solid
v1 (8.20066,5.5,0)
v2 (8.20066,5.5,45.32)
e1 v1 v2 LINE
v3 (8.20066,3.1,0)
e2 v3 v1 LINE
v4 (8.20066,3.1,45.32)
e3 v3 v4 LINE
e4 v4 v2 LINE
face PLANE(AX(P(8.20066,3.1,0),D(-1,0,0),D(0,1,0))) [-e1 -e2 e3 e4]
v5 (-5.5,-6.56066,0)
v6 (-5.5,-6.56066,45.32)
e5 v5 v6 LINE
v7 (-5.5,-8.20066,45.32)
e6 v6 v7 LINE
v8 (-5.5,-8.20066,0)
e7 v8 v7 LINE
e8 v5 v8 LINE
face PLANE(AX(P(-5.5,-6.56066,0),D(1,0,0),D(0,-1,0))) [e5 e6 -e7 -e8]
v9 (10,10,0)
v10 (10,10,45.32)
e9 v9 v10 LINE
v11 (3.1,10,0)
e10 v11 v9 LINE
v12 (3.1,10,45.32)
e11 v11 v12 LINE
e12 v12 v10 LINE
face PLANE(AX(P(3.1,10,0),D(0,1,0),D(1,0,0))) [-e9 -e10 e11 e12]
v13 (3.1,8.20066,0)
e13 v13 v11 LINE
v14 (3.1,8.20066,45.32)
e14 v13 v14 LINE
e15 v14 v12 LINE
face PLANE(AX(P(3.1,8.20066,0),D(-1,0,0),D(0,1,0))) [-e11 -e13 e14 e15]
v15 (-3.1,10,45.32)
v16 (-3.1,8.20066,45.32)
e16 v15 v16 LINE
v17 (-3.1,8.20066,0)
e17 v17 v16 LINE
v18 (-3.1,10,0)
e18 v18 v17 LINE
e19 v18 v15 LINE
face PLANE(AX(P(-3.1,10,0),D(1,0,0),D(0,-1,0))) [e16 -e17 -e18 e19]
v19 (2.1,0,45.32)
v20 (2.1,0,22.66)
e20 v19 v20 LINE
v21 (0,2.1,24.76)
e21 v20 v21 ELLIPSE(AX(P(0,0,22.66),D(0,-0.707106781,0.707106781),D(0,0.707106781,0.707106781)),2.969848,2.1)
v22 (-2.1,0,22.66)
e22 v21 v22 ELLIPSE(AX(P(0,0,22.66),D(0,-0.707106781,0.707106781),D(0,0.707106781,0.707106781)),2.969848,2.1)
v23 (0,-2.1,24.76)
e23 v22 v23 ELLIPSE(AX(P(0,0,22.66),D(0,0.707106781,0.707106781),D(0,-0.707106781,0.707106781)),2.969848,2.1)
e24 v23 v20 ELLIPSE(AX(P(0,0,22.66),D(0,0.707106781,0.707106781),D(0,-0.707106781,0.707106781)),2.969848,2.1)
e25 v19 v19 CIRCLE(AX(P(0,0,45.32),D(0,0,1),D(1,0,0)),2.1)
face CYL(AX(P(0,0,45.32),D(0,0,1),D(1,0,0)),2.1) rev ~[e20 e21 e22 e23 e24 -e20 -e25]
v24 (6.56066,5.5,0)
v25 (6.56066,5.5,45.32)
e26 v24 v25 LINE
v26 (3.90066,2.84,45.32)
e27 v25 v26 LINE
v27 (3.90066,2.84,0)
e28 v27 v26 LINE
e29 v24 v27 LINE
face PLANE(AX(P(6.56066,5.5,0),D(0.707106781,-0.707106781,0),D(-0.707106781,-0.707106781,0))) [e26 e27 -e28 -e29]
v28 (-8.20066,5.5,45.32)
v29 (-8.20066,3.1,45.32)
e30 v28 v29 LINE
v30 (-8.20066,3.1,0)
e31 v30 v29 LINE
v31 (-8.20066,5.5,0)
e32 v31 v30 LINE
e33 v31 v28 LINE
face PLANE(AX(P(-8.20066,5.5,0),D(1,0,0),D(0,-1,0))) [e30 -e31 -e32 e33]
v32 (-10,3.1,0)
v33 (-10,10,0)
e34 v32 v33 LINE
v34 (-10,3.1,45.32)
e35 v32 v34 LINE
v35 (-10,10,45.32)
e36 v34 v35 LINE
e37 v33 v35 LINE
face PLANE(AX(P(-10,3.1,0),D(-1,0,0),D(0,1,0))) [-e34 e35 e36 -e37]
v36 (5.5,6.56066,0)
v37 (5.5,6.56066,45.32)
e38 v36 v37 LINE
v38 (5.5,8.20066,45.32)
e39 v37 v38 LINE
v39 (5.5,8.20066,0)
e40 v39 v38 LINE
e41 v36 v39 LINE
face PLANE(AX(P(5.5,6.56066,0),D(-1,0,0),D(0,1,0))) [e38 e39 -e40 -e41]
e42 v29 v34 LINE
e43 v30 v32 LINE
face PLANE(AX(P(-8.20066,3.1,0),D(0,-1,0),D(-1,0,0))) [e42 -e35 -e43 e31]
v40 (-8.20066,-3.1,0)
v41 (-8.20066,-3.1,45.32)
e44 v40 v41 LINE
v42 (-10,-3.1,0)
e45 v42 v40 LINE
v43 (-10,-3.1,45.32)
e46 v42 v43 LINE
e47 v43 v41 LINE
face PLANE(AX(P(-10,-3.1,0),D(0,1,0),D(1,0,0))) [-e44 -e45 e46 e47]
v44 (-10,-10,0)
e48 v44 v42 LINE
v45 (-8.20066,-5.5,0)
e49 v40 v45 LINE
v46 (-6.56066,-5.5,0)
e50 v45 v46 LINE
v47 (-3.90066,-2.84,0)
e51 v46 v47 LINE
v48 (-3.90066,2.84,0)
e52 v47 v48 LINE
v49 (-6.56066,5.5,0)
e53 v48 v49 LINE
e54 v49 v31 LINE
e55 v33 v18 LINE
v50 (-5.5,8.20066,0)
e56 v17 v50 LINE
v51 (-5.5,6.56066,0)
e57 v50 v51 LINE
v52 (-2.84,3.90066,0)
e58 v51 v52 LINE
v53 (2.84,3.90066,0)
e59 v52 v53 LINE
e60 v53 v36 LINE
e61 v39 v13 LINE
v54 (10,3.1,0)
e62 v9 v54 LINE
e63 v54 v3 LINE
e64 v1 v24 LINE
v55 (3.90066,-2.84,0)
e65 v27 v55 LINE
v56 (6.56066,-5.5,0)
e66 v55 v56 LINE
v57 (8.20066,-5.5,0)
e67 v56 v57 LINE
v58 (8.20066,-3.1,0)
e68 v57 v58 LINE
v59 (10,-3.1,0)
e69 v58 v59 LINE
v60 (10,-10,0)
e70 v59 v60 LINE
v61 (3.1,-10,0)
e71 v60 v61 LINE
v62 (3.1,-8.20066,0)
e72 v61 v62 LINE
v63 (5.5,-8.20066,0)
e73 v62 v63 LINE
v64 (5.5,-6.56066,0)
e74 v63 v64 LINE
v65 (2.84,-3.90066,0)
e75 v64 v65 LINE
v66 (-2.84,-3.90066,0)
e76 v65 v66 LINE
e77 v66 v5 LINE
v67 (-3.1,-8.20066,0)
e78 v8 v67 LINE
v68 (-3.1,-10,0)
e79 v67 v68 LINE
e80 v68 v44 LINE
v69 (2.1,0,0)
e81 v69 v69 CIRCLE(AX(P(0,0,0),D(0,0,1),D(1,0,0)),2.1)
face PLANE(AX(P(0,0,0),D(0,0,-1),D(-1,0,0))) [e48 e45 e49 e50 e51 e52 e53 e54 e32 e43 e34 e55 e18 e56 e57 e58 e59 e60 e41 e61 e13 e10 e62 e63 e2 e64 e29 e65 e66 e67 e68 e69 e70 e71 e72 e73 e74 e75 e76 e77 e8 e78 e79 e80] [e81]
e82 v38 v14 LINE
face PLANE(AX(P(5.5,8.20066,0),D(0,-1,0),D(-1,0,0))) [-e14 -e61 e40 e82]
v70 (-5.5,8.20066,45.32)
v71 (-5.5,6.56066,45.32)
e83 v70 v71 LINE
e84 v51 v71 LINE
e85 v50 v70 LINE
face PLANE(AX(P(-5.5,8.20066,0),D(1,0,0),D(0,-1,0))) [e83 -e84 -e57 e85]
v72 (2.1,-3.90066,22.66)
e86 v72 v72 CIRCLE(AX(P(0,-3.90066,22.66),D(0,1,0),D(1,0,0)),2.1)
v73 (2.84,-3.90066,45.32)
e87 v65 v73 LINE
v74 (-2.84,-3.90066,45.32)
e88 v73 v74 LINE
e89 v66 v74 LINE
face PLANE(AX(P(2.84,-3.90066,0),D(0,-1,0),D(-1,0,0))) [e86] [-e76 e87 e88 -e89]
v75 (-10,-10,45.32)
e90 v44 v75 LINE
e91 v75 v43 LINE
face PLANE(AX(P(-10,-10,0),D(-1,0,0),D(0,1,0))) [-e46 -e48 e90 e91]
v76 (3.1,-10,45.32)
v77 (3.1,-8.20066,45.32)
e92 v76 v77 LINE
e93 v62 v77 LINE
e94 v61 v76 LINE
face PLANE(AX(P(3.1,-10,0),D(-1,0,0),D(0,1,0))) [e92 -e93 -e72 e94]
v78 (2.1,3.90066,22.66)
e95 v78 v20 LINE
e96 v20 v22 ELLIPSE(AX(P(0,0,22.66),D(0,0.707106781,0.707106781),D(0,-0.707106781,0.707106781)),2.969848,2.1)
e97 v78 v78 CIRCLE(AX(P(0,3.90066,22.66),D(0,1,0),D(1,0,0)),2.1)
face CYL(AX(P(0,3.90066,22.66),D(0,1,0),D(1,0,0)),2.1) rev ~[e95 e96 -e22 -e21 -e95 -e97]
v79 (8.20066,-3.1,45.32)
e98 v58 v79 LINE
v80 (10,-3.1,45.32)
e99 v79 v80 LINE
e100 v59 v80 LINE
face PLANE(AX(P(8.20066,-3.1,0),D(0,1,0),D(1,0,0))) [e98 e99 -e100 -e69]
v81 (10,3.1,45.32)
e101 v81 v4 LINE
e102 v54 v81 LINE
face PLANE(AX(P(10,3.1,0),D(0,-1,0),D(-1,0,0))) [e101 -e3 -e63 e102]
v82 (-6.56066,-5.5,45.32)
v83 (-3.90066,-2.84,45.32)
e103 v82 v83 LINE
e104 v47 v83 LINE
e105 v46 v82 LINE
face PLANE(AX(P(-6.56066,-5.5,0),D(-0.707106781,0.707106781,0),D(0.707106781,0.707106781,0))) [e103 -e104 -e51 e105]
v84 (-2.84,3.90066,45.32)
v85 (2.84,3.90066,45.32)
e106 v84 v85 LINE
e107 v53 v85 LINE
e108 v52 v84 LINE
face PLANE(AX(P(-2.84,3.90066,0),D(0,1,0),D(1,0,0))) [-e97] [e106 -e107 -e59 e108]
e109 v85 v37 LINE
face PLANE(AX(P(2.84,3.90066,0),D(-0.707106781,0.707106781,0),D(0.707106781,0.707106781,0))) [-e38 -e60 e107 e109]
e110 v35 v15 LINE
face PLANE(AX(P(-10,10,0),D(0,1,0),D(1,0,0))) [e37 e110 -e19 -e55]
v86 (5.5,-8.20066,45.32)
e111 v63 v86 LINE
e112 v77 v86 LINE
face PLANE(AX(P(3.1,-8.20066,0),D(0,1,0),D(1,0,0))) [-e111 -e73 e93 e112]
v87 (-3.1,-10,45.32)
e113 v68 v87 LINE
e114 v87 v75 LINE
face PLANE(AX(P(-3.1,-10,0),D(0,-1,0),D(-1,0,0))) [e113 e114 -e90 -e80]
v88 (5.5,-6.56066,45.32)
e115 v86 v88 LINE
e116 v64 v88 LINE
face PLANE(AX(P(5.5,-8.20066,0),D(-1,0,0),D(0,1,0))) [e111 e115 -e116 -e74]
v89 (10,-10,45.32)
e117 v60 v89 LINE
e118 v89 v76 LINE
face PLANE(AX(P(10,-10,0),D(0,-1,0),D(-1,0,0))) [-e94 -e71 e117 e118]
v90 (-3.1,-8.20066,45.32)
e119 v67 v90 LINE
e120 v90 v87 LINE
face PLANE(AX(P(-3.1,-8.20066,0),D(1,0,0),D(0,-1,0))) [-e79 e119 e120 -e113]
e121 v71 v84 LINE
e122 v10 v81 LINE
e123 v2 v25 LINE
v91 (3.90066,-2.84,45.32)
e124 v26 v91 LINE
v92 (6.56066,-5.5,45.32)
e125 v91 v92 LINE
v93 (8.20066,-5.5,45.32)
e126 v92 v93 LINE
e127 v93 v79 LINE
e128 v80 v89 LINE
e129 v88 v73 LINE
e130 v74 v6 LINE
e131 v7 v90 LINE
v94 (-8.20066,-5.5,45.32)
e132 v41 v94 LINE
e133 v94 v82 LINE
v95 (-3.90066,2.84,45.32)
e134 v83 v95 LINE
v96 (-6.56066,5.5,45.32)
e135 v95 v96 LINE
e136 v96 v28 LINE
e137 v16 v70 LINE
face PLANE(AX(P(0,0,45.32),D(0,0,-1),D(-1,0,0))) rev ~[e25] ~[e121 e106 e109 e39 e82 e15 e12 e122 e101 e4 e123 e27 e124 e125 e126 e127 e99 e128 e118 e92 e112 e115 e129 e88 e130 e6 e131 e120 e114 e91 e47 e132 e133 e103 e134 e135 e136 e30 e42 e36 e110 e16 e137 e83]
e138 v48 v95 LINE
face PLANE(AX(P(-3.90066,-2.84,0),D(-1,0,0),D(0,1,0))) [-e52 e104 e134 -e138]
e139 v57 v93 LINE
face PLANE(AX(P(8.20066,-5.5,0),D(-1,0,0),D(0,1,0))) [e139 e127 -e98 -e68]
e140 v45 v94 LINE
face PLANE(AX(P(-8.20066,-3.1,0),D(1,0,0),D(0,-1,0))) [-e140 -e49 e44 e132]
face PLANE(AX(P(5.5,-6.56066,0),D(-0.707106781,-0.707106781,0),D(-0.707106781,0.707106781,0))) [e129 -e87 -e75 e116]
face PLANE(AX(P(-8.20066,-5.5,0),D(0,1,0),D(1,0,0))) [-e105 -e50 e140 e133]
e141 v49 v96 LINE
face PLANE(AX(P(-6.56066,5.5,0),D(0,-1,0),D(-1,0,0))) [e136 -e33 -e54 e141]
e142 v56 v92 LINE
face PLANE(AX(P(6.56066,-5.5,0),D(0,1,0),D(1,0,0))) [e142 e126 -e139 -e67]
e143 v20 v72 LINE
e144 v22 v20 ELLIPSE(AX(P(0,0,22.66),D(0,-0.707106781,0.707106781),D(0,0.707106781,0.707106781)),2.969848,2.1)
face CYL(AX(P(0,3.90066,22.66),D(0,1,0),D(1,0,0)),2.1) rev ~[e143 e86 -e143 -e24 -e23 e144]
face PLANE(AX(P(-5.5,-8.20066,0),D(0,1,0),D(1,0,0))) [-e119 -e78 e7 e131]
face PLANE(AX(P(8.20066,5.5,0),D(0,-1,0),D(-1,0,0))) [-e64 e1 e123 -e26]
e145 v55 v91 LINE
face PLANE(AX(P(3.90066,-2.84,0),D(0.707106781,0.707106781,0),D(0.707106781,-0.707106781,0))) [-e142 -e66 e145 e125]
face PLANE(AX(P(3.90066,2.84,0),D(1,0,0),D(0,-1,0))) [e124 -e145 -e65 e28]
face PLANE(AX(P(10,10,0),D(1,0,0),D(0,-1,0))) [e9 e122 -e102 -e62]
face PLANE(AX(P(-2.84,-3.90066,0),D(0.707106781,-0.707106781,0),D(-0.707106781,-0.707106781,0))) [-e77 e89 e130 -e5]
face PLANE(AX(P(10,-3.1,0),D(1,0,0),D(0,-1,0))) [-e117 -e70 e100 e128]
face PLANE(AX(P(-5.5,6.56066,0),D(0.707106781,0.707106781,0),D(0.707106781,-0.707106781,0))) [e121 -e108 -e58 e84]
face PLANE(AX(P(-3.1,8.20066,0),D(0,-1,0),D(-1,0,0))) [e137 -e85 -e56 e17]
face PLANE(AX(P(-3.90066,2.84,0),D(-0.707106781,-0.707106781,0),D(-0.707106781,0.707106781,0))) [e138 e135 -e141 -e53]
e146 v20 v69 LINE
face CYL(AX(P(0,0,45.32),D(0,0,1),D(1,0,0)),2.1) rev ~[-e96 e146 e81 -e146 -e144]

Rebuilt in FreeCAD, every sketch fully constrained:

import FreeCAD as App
import Part
import Sketcher


def add_polygon(sketch, points):
    """Adds a closed chain of lines whose ends are joined by coincident constraints."""
    first, n = sketch.GeometryCount, len(points)
    for a, b in zip(points, points[1:] + points[:1]):
        sketch.addGeometry(Part.LineSegment(App.Vector(*a, 0), App.Vector(*b, 0)), False)
    for i in range(n):
        sketch.addConstraint(Sketcher.Constraint("Coincident", first + i, 2, first + (i + 1) % n, 1))

doc = App.newDocument("Part")
body = doc.addObject("PartDesign::Body", "Body")

# Sketch on XY plane
sketch1 = body.newObject("Sketcher::SketchObject", "Sketch")
sketch1.AttachmentSupport = (doc.getObject("XY_Plane"), [""])
sketch1.MapMode = "FlatFace"
add_polygon(sketch1, [(-3.1, 8.2), (-3.1, 10), (-10, 10), (-10, 3.1), (-8.2, 3.1), (-8.2, 5.5), (-6.6, 5.5), (-3.9, 2.8), (-3.9, -2.8), (-6.6, -5.5), (-8.2, -5.5), (-8.2, -3.1), (-10, -3.1), (-10, -10), (-3.1, -10), (-3.1, -8.2), (-5.5, -8.2), (-5.5, -6.6), (-2.8, -3.9), (2.8, -3.9), (5.5, -6.6), (5.5, -8.2), (3.1, -8.2), (3.1, -10), (10, -10), (10, -3.1), (8.2, -3.1), (8.2, -5.5), (6.6, -5.5), (3.9, -2.8), (3.9, 2.8), (6.6, 5.5), (8.2, 5.5), (8.2, 3.1), (10, 3.1), (10, 10), (3.1, 10), (3.1, 8.2), (5.5, 8.2), (5.5, 6.6), (2.8, 3.9), (-2.8, 3.9), (-5.5, 6.6), (-5.5, 8.2)])  # lines 0-43
sketch1.addConstraint([
    Sketcher.Constraint("Vertical", 0),
    Sketcher.Constraint("Horizontal", 1),
    Sketcher.Constraint("Vertical", 2),
    Sketcher.Constraint("Horizontal", 3),
    Sketcher.Constraint("Vertical", 4),
    Sketcher.Constraint("Horizontal", 5),
    Sketcher.Constraint("Vertical", 7),
    Sketcher.Constraint("Horizontal", 9),
    Sketcher.Constraint("Vertical", 10),
    Sketcher.Constraint("Horizontal", 11),
    Sketcher.Constraint("Vertical", 12),
    Sketcher.Constraint("Horizontal", 13),
    Sketcher.Constraint("Vertical", 14),
    Sketcher.Constraint("Horizontal", 15),
    Sketcher.Constraint("Vertical", 16),
    Sketcher.Constraint("Horizontal", 18),
    Sketcher.Constraint("Vertical", 20),
    Sketcher.Constraint("Horizontal", 21),
    Sketcher.Constraint("Vertical", 22),
    Sketcher.Constraint("Horizontal", 23),
    Sketcher.Constraint("Vertical", 24),
    Sketcher.Constraint("Horizontal", 25),
    Sketcher.Constraint("Vertical", 26),
    Sketcher.Constraint("Horizontal", 27),
    Sketcher.Constraint("Vertical", 29),
    Sketcher.Constraint("Horizontal", 31),
    Sketcher.Constraint("Vertical", 32),
    Sketcher.Constraint("Horizontal", 33),
    Sketcher.Constraint("Vertical", 34),
    Sketcher.Constraint("Horizontal", 35),
    Sketcher.Constraint("Vertical", 36),
    Sketcher.Constraint("Horizontal", 37),
    Sketcher.Constraint("Vertical", 38),
    Sketcher.Constraint("Horizontal", 40),
    Sketcher.Constraint("Vertical", 42),
    Sketcher.Constraint("Horizontal", 43),
    Sketcher.Constraint("Symmetric", 0, 2, 22, 2, -1, 1),
    Sketcher.Constraint("Symmetric", 2, 2, 24, 2, -1, 1),
    Sketcher.Constraint("Symmetric", 4, 2, 26, 2, -1, 1),
    Sketcher.Constraint("Symmetric", 6, 2, 28, 2, -1, 1),
    Sketcher.Constraint("Symmetric", 8, 2, 30, 2, -1, 1),
    Sketcher.Constraint("Symmetric", 10, 2, 32, 2, -1, 1),
    Sketcher.Constraint("Symmetric", 12, 2, 34, 2, -1, 1),
    Sketcher.Constraint("Symmetric", 14, 2, 36, 2, -1, 1),
    Sketcher.Constraint("Symmetric", 16, 2, 38, 2, -1, 1),
    Sketcher.Constraint("Symmetric", 17, 2, 39, 2, -1, 1),
    Sketcher.Constraint("Symmetric", 19, 2, 41, 2, -1, 1),
    Sketcher.Constraint("Symmetric", 16, 2, 19, 2, -2),
    Sketcher.Constraint("Symmetric", 14, 2, 21, 2, -2),
    Sketcher.Constraint("Symmetric", 12, 2, 23, 2, -2),
    Sketcher.Constraint("Symmetric", 10, 2, 25, 2, -2),
    Sketcher.Constraint("Symmetric", 8, 2, 27, 2, -2),
    Sketcher.Constraint("Perpendicular", 6, 8),
    Sketcher.Constraint("Parallel", 8, 17),
    Sketcher.Constraint("Perpendicular", 17, 19),
    Sketcher.Constraint("Parallel", 19, 28),
    Sketcher.Constraint("Perpendicular", 28, 30),
    Sketcher.Constraint("Perpendicular", 39, 41),
    Sketcher.Constraint("Horizontal", 7, 2, 28, 2),
    Sketcher.Constraint("Horizontal", 37, 2, 42, 2),
    Sketcher.Constraint("Equal", 33, 0),
    Sketcher.Constraint("Equal", 35, 2),
    Sketcher.Constraint("Equal", 43, 4),
    Sketcher.Constraint("Equal", 40, 7),
    Sketcher.Constraint("Equal", 31, 16),
    Sketcher.Constraint("Equal", 8, 17),
    Sketcher.Constraint("DistanceX", 1, 2, 1, 1, 6.9),
    Sketcher.Constraint("DistanceX", 15, 2, 15, 1, 2.4),
    Sketcher.Constraint("DistanceY", -1, 1, 0, 2, 10.0),
    Sketcher.Constraint("DistanceX", 5, 1, 5, 2, 1.64),
    Sketcher.Constraint("DistanceX", 18, 1, 18, 2, 5.68),
    Sketcher.Constraint("DistanceX", 3, 1, 3, 2, 1.79934),
])
pad1 = body.newObject("PartDesign::Pad", "Pad")
pad1.Profile = sketch1
pad1.Length = 45.32

# Sketch on XY plane
sketch2 = body.newObject("Sketcher::SketchObject", "Sketch001")
sketch2.AttachmentSupport = (doc.getObject("XY_Plane"), [""])
sketch2.MapMode = "FlatFace"
sketch2.AttachmentOffset = App.Placement(App.Vector(0, 0, 45.32), App.Rotation())
sketch2.addGeometry(Part.Circle(App.Vector(0, 0, 0), App.Vector(0, 0, 1), 2.1), False)
sketch2.addConstraint([
    Sketcher.Constraint("Coincident", 0, 3, -1, 1),
    Sketcher.Constraint("Diameter", 0, 4.2),
])
pocket1 = body.newObject("PartDesign::Pocket", "Pocket")
pocket1.Profile = sketch2
pocket1.Type = "ThroughAll"

# Sketch on XZ plane
sketch3 = body.newObject("Sketcher::SketchObject", "Sketch002")
sketch3.AttachmentSupport = (doc.getObject("XZ_Plane"), [""])
sketch3.MapMode = "FlatFace"
sketch3.AttachmentOffset = App.Placement(App.Vector(0, 0, -3.90066), App.Rotation())
sketch3.addGeometry(Part.Circle(App.Vector(0, 22.7, 0), App.Vector(0, 0, 1), 2.1), False)
sketch3.addConstraint([
    Sketcher.Constraint("PointOnObject", 0, 3, -2),
    Sketcher.Constraint("Diameter", 0, 4.2),
    Sketcher.Constraint("DistanceY", -1, 1, 0, 3, 22.66),
])
pocket2 = body.newObject("PartDesign::Pocket", "Pocket001")
pocket2.Profile = sketch3
pocket2.Type = "ThroughAll"
pocket2.Reversed = True

doc.recompute()
